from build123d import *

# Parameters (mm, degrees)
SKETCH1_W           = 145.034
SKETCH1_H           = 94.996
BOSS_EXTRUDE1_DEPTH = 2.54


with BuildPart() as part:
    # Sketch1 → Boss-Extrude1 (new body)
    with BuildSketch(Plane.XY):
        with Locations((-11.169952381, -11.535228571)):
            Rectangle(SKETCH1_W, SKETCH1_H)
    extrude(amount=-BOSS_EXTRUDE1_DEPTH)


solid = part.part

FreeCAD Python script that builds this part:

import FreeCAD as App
import Part
import Sketcher
from FreeCAD import Vector
Q = App.Units.Quantity


def add_polygon(sketch, points):
    """Adds a closed chain of lines whose ends are joined by coincident constraints."""
    first, n = sketch.GeometryCount, len(points)
    for a, b in zip(points, points[1:] + points[:1]):
        sketch.addGeometry(Part.LineSegment(App.Vector(*a, 0), App.Vector(*b, 0)), False)
    for i in range(n):
        sketch.addConstraint(Sketcher.Constraint("Coincident", first + i, 2, first + (i + 1) % n, 1))

doc = App.newDocument("Part")
body = doc.addObject("PartDesign::Body", "Body")

# Sketch on XY plane
sketch1 = doc.addObject("Sketcher::SketchObject", "Sketch")
body.addObject(sketch1)
sketch1.AttachmentSupport = (doc.XY_Plane, [""])
sketch1.MapMode = "FlatFace"
add_polygon(sketch1, [(-84, 36), (-84, -59), (61, -59), (61, 36)])  # lines 0-3
sketch1.addConstraint([
    Sketcher.Constraint("Vertical", 0),
    Sketcher.Constraint("Horizontal", 1),
    Sketcher.Constraint("Vertical", 2),
    Sketcher.Constraint("Horizontal", 3),
    Sketcher.Constraint("DistanceX", 1, 1, 1, 2, Q("5.71 in")),
    Sketcher.Constraint("DistanceY", 0, 2, 0, 1, Q("3.74 in")),
    Sketcher.Constraint("DistanceY", 0, 2, -1, 1, Q("59.033229 mm")),
    Sketcher.Constraint("DistanceX", 0, 2, -1, 1, Q("83.686952 mm")),
])
pad1 = doc.addObject("PartDesign::Pad", "Pad")
body.addObject(pad1)
pad1.Profile = sketch1
pad1.Length = Q("0.1 in")
pad1.Reversed = True

doc.recompute()
